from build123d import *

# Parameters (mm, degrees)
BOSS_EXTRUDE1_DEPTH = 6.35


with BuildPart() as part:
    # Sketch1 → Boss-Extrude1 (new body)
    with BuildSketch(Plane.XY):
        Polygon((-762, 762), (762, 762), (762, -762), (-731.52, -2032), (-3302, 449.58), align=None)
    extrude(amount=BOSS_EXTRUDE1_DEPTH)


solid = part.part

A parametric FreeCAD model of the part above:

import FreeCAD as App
import Part
import Sketcher
Q = App.Units.Quantity

doc = App.newDocument("Part")
body = doc.addObject("PartDesign::Body", "Body")

# Sketch on XY plane
sketch1 = doc.addObject("Sketcher::SketchObject", "Sketch")
body.addObject(sketch1)
sketch1.AttachmentSupport = (doc.XY_Plane, [""])
sketch1.MapMode = "FlatFace"
sketch1.addGeometry(Part.LineSegment(App.Vector(762, 762, 0), App.Vector(-762, 762, 0)), False)
sketch1.addGeometry(Part.LineSegment(App.Vector(-762, 762, 0), App.Vector(-3302, 450, 0)), False)
sketch1.addGeometry(Part.LineSegment(App.Vector(-3302, 450, 0), App.Vector(-732, -2032, 0)), False)
sketch1.addGeometry(Part.LineSegment(App.Vector(-732, -2032, 0), App.Vector(762, -762, 0)), False)
sketch1.addGeometry(Part.LineSegment(App.Vector(762, -762, 0), App.Vector(762, 762, 0)), False)
sketch1.addConstraint(Sketcher.Constraint("Coincident", 0, 2, 1, 1))
sketch1.addConstraint(Sketcher.Constraint("Coincident", 1, 2, 2, 1))
sketch1.addConstraint(Sketcher.Constraint("Coincident", 2, 2, 3, 1))
sketch1.addConstraint(Sketcher.Constraint("Coincident", 3, 2, 4, 1))
sketch1.addConstraint(Sketcher.Constraint("Coincident", 4, 2, 0, 1))
sketch1.addConstraint(Sketcher.Constraint("Horizontal", 0))
sketch1.addConstraint(Sketcher.Constraint("Vertical", 4))
sketch1.addConstraint(Sketcher.Constraint("Symmetric", 0, 2, 3, 2, -1, 1))
sketch1.addConstraint(Sketcher.Constraint("Equal", 0, 4))
sketch1.addConstraint(Sketcher.Constraint("DistanceX", 0, 2, 0, 1, Q("60 in")))
sketch1.addConstraint(Sketcher.Constraint("DistanceX", 1, 2, -1, 1, Q("130 in")))
sketch1.addConstraint(Sketcher.Constraint("DistanceY", 2, 2, -1, 1, Q("80 in")))
sketch1.addConstraint(Sketcher.Constraint("DistanceY", -1, 1, 1, 2, Q("17.7 in")))
sketch1.addConstraint(Sketcher.Constraint("DistanceX", 2, 2, -1, 1, Q("28.8 in")))
pad1 = doc.addObject("PartDesign::Pad", "Pad")
body.addObject(pad1)
pad1.Profile = sketch1
pad1.Length = Q("0.25 in")

doc.recompute()
